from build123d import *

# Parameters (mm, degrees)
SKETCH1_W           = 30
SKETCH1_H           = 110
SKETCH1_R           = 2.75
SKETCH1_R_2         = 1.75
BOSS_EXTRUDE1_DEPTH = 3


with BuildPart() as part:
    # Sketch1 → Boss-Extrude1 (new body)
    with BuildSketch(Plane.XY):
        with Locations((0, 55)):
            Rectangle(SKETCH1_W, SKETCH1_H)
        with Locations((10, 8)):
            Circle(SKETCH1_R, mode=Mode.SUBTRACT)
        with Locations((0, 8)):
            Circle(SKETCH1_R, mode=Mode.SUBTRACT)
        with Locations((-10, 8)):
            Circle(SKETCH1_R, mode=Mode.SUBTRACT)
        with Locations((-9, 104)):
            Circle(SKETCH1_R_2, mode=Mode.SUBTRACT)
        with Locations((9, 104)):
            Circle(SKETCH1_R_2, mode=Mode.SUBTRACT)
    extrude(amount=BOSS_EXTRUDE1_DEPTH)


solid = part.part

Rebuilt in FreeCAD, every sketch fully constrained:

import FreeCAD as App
import Part
import Sketcher
Q = App.Units.Quantity


def add_polygon(sketch, points):
    """Adds a closed chain of lines whose ends are joined by coincident constraints."""
    first, n = sketch.GeometryCount, len(points)
    for a, b in zip(points, points[1:] + points[:1]):
        sketch.addGeometry(Part.LineSegment(App.Vector(*a, 0), App.Vector(*b, 0)), False)
    for i in range(n):
        sketch.addConstraint(Sketcher.Constraint("Coincident", first + i, 2, first + (i + 1) % n, 1))

doc = App.newDocument("Part")
params = doc.addObject("Spreadsheet::Sheet", "Params")
for row, (alias, value) in enumerate([
    ("sketch1_diameter", "5.5 mm"),
    ("sketch1_diameter2", "3.5 mm"),
    ("sketch1_width", "30 mm"),
    ("sketch1_height", "110 mm"),
    ("pad1_length", "3 mm"),
], start=1):
    params.set(f"A{row}", alias)
    params.set(f"B{row}", "=" + value)
    params.setAlias(f"B{row}", alias)

body = doc.addObject("PartDesign::Body", "Body")

sketch1 = body.newObject("Sketcher::SketchObject", "Sketch")
sketch1.AttachmentSupport = (doc.getObject("XY_Plane"), [""])
sketch1.MapMode = "FlatFace"
add_polygon(sketch1, [(-15, 110), (-15, 0), (15, 0), (15, 110)])
sketch1.addGeometry(Part.Circle(App.Vector(-10, 8, 0), App.Vector(0, 0, 1), 2.75), False)
sketch1.addGeometry(Part.Circle(App.Vector(0, 8, 0), App.Vector(0, 0, 1), 2.75), False)
sketch1.addGeometry(Part.Circle(App.Vector(10, 8, 0), App.Vector(0, 0, 1), 2.75), False)
sketch1.addGeometry(Part.Circle(App.Vector(-9, 104, 0), App.Vector(0, 0, 1), 1.75), False)
sketch1.addGeometry(Part.Circle(App.Vector(9, 104, 0), App.Vector(0, 0, 1), 1.75), False)
sketch1.addConstraint([
    Sketcher.Constraint("Vertical", 0),
    Sketcher.Constraint("Horizontal", 1),
    Sketcher.Constraint("Vertical", 2),
    Sketcher.Constraint("Horizontal", 3),
    Sketcher.Constraint("Equal", 4, 5),
    Sketcher.Constraint("Equal", 5, 6),
    Sketcher.Constraint("Equal", 7, 8),
    Sketcher.Constraint("Symmetric", 0, 2, 1, 2, -1, 1),
    Sketcher.Constraint("Symmetric", 4, 3, 6, 3, -2),
    Sketcher.Constraint("Symmetric", 7, 3, 8, 3, -2),
    Sketcher.Constraint("PointOnObject", 5, 3, -2),
    Sketcher.Constraint("Horizontal", 4, 3, 5, 3),
    Sketcher.Constraint("Diameter", 4, Q("5.5 mm")),
    Sketcher.Constraint("Diameter", 7, Q("3.5 mm")),
    Sketcher.Constraint("DistanceX", 1, 1, 1, 2, Q("30 mm")),
    Sketcher.Constraint("DistanceY", 0, 2, 0, 1, Q("110 mm")),
    Sketcher.Constraint("DistanceX", 4, 3, -1, 1, Q("10 mm")),
    Sketcher.Constraint("DistanceY", -1, 1, 4, 3, Q("8 mm")),
    Sketcher.Constraint("DistanceX", 7, 3, -1, 1, Q("9 mm")),
    Sketcher.Constraint("DistanceY", -1, 1, 7, 3, Q("104 mm")),
])
sketch1.setExpression("Constraints[16]", "Params.sketch1_diameter")
sketch1.setExpression("Constraints[17]", "Params.sketch1_diameter2")
sketch1.setExpression("Constraints[18]", "Params.sketch1_width")
sketch1.setExpression("Constraints[19]", "Params.sketch1_height")
pad1 = body.newObject("PartDesign::Pad", "Pad")
pad1.Profile = sketch1
pad1.setExpression("Length", "Params.pad1_length")

doc.recompute()
